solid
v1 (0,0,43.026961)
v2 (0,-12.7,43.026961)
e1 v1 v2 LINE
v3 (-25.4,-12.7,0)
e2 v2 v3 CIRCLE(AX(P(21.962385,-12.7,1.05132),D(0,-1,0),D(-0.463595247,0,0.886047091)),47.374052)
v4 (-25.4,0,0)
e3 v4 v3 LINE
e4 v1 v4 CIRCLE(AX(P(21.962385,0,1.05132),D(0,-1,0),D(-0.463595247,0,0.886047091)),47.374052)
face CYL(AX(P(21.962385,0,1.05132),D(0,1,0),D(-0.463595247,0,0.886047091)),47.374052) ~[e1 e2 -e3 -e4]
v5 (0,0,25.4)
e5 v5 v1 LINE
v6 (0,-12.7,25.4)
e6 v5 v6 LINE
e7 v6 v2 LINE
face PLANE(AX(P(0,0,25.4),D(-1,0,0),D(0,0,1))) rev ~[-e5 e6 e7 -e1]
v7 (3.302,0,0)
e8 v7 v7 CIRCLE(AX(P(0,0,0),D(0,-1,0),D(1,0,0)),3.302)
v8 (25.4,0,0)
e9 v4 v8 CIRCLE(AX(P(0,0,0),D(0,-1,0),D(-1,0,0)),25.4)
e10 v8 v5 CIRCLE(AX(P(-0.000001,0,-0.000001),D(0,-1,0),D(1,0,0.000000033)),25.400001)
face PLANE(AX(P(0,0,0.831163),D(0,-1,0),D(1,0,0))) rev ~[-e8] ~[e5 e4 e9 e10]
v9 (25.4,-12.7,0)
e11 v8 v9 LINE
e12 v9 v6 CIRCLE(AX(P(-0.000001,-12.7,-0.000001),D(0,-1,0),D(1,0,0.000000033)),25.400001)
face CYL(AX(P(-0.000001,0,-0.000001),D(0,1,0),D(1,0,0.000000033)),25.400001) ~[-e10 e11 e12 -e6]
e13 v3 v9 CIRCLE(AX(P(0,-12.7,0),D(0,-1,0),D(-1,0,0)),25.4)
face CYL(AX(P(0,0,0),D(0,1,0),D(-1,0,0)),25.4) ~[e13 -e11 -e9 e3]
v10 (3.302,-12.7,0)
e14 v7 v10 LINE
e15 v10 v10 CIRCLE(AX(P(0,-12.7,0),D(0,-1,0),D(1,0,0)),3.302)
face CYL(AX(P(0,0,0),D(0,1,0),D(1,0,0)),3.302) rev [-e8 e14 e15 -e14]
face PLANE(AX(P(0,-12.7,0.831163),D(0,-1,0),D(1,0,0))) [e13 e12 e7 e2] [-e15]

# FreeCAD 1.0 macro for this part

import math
import FreeCAD as App
import Part
import Sketcher
from FreeCAD import Vector
Q = App.Units.Quantity

doc = App.newDocument("Part")
body = doc.addObject("PartDesign::Body", "Body")

sketch1 = body.newObject("Sketcher::SketchObject", "Sketch")
sketch1.AttachmentSupport = (doc.getObject("XZ_Plane"), [""])
sketch1.MapMode = "FlatFace"
sketch1.addGeometry([
    Part.ArcOfCircle(Part.Circle(Vector(0, 0, 0), Vector(0, 0, 1), 25.4), math.radians(180), math.radians(360)),
    Part.ArcOfCircle(Part.Circle(Vector(0, 0, 0), Vector(0, 0, 1), 25.4), math.radians(0), math.radians(90)),
    Part.LineSegment(Vector(0, 25.4, 0), Vector(0, 43, 0)),
    Part.ArcOfCircle(Part.Circle(Vector(22, 1.1, 0), Vector(0, 0, 1), 47.4), math.radians(118), math.radians(181)),
    Part.Circle(Vector(0, 0, 0), Vector(0, 0, 1), 3.3),
], False)
sketch1.addConstraint([
    Sketcher.Constraint("Tangent", 0, 2, 1, 1),
    Sketcher.Constraint("Coincident", 1, 2, 2, 1),
    Sketcher.Constraint("Coincident", 2, 2, 3, 1),
    Sketcher.Constraint("Coincident", 3, 2, 0, 1),
    Sketcher.Constraint("Vertical", 2),
    Sketcher.Constraint("Coincident", 0, 3, -1, 1),
    Sketcher.Constraint("Coincident", 4, 3, -1, 1),
    Sketcher.Constraint("Equal", 0, 1),
    Sketcher.Constraint("PointOnObject", 0, 2, -1),
    Sketcher.Constraint("PointOnObject", 1, 2, -2),
    Sketcher.Constraint("PointOnObject", 3, 2, -1),
    Sketcher.Constraint("Radius", 0, Q("1 in")),
    Sketcher.Constraint("Diameter", 4, Q("0.26 in")),
    Sketcher.Constraint("Radius", 3, 47.374052),
    Sketcher.Constraint("DistanceY", 2, 1, 2, 2, 17.626961),
])
pad1 = body.newObject("PartDesign::Pad", "Pad")
pad1.Profile = sketch1
pad1.Length = Q("0.5 in")

doc.recompute()
